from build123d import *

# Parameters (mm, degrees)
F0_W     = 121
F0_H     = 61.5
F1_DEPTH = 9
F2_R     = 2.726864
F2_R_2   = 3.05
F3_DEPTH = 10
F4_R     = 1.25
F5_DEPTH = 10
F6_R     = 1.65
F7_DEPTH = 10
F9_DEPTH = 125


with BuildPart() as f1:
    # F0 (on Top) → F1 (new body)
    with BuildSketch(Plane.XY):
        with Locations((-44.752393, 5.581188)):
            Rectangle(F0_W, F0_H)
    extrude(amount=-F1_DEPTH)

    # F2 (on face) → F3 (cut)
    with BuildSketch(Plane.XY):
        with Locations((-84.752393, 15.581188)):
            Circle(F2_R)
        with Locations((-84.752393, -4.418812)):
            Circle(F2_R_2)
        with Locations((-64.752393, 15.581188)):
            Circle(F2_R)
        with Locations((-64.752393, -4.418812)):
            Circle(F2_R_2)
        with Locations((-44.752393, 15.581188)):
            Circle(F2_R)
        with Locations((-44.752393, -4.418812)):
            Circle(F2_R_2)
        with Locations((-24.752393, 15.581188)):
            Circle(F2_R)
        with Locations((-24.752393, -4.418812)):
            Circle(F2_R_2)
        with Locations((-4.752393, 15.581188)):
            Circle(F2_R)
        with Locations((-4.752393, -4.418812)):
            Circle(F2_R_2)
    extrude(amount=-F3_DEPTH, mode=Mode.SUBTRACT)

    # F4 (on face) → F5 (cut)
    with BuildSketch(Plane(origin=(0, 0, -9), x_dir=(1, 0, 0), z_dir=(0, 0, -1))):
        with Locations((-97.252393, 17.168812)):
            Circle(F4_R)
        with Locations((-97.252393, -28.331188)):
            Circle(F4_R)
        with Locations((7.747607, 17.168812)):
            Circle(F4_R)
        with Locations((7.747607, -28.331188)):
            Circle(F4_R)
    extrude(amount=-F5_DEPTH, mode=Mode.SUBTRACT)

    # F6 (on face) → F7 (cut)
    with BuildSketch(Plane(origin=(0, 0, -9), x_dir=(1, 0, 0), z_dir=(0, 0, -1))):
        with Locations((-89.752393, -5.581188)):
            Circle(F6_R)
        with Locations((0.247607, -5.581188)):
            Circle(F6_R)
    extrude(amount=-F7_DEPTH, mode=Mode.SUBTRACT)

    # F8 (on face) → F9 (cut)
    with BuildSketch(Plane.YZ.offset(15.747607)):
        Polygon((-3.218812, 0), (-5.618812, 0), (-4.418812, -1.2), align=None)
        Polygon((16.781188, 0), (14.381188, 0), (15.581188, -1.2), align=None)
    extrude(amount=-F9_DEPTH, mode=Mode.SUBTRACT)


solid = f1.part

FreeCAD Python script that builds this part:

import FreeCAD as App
import Part
import Sketcher

V = App.Vector
Q = App.Units.Quantity


def add_polygon(sketch, points):
    """Adds a closed chain of lines whose ends are joined by coincident constraints."""
    first, n = sketch.GeometryCount, len(points)
    for a, b in zip(points, points[1:] + points[:1]):
        sketch.addGeometry(Part.LineSegment(App.Vector(*a, 0), App.Vector(*b, 0)), False)
    for i in range(n):
        sketch.addConstraint(Sketcher.Constraint("Coincident", first + i, 2, first + (i + 1) % n, 1))

doc = App.newDocument("Part")
body = doc.addObject("PartDesign::Body", "Body")

sketch1 = body.newObject("Sketcher::SketchObject", "Sketch")
sketch1.AttachmentSupport = (doc.getObject("XY_Plane"), [""])
sketch1.MapMode = "FlatFace"
add_polygon(sketch1, [(-105, 36), (-105, -25), (16, -25), (16, 36)])
sketch1.addConstraint(Sketcher.Constraint("Vertical", 0))
sketch1.addConstraint(Sketcher.Constraint("Horizontal", 1))
sketch1.addConstraint(Sketcher.Constraint("Vertical", 2))
sketch1.addConstraint(Sketcher.Constraint("Horizontal", 3))
sketch1.addConstraint(Sketcher.Constraint("DistanceX", 1, 1, 1, 2, Q("121 mm")))
sketch1.addConstraint(Sketcher.Constraint("DistanceY", 0, 2, 0, 1, Q("61.5 mm")))
sketch1.addConstraint(Sketcher.Constraint("DistanceY", 0, 2, -1, 1, Q("25.168812 mm")))
sketch1.addConstraint(Sketcher.Constraint("DistanceX", 0, 2, -1, 1, Q("105.252393 mm")))
pad1 = body.newObject("PartDesign::Pad", "Pad")
pad1.Profile = sketch1
pad1.Length = 9
pad1.Reversed = True

sketch2 = body.newObject("Sketcher::SketchObject", "Sketch001")
sketch2.AttachmentSupport = (doc.getObject("XY_Plane"), [""])
sketch2.MapMode = "FlatFace"
sketch2.addGeometry(Part.Circle(V(-84.8, 15.6, 0), V(0, 0, 1), 2.7), False)
sketch2.addGeometry(Part.Circle(V(-84.8, -4.4, 0), V(0, 0, 1), 3), False)
sketch2.addGeometry(Part.Circle(V(-64.8, 15.6, 0), V(0, 0, 1), 2.7), False)
sketch2.addGeometry(Part.Circle(V(-64.8, -4.4, 0), V(0, 0, 1), 3), False)
sketch2.addGeometry(Part.Circle(V(-44.8, 15.6, 0), V(0, 0, 1), 2.7), False)
sketch2.addGeometry(Part.Circle(V(-44.8, -4.4, 0), V(0, 0, 1), 3), False)
sketch2.addGeometry(Part.Circle(V(-24.8, 15.6, 0), V(0, 0, 1), 2.7), False)
sketch2.addGeometry(Part.Circle(V(-24.8, -4.4, 0), V(0, 0, 1), 3), False)
sketch2.addGeometry(Part.Circle(V(-4.8, 15.6, 0), V(0, 0, 1), 2.7), False)
sketch2.addGeometry(Part.Circle(V(-4.8, -4.4, 0), V(0, 0, 1), 3), False)
sketch2.addConstraint(Sketcher.Constraint("Equal", 0, 2))
sketch2.addConstraint(Sketcher.Constraint("Equal", 1, 3))
sketch2.addConstraint(Sketcher.Constraint("Equal", 2, 4))
sketch2.addConstraint(Sketcher.Constraint("Equal", 3, 5))
sketch2.addConstraint(Sketcher.Constraint("Equal", 4, 6))
sketch2.addConstraint(Sketcher.Constraint("Equal", 5, 7))
sketch2.addConstraint(Sketcher.Constraint("Equal", 6, 8))
sketch2.addConstraint(Sketcher.Constraint("Equal", 7, 9))
sketch2.addConstraint(Sketcher.Constraint("Horizontal", 0, 3, 2, 3))
sketch2.addConstraint(Sketcher.Constraint("Horizontal", 1, 3, 3, 3))
sketch2.addConstraint(Sketcher.Constraint("Horizontal", 2, 3, 4, 3))
sketch2.addConstraint(Sketcher.Constraint("Horizontal", 3, 3, 5, 3))
sketch2.addConstraint(Sketcher.Constraint("Horizontal", 4, 3, 6, 3))
sketch2.addConstraint(Sketcher.Constraint("Horizontal", 5, 3, 7, 3))
sketch2.addConstraint(Sketcher.Constraint("Horizontal", 6, 3, 8, 3))
sketch2.addConstraint(Sketcher.Constraint("Horizontal", 7, 3, 9, 3))
sketch2.addConstraint(Sketcher.Constraint("Vertical", 0, 3, 1, 3))
sketch2.addConstraint(Sketcher.Constraint("Vertical", 2, 3, 3, 3))
sketch2.addConstraint(Sketcher.Constraint("Vertical", 4, 3, 5, 3))
sketch2.addConstraint(Sketcher.Constraint("Vertical", 6, 3, 7, 3))
sketch2.addConstraint(Sketcher.Constraint("Vertical", 8, 3, 9, 3))
sketch2.addConstraint(Sketcher.Constraint("Diameter", 1, Q("6.1 mm")))
sketch2.addConstraint(Sketcher.Constraint("DistanceY", 1, 3, 0, 3, Q("20 mm")))
sketch2.addConstraint(Sketcher.Constraint("DistanceX", 0, 3, 2, 3, Q("20 mm")))
sketch2.addConstraint(Sketcher.Constraint("DistanceX", 2, 3, 4, 3, Q("20 mm")))
sketch2.addConstraint(Sketcher.Constraint("DistanceX", 4, 3, 6, 3, Q("20 mm")))
sketch2.addConstraint(Sketcher.Constraint("DistanceX", 6, 3, 8, 3, Q("20 mm")))
sketch2.addConstraint(Sketcher.Constraint("Diameter", 0, Q("5.453728 mm")))
sketch2.addConstraint(Sketcher.Constraint("DistanceX", 0, 3, -1, 1, Q("84.752393 mm")))
sketch2.addConstraint(Sketcher.Constraint("DistanceY", -1, 1, 0, 3, Q("15.581188 mm")))
pocket1 = body.newObject("PartDesign::Pocket", "Pocket")
pocket1.Profile = sketch2
pocket1.Length = 10

sketch3 = body.newObject("Sketcher::SketchObject", "Sketch002")
sketch3.AttachmentSupport = (doc.getObject("XY_Plane"), [""])
sketch3.MapMode = "FlatFace"
sketch3.AttachmentOffset = App.Placement(V(0, 0, -9), App.Rotation())
sketch3.addGeometry(Part.Circle(V(-97.3, -17.2, 0), V(0, 0, 1), 1.2), False)
sketch3.addGeometry(Part.Circle(V(-97.3, 28.3, 0), V(0, 0, 1), 1.2), False)
sketch3.addGeometry(Part.Circle(V(7.7, -17.2, 0), V(0, 0, 1), 1.2), False)
sketch3.addGeometry(Part.Circle(V(7.7, 28.3, 0), V(0, 0, 1), 1.2), False)
sketch3.addConstraint(Sketcher.Constraint("Equal", 0, 1))
sketch3.addConstraint(Sketcher.Constraint("Equal", 1, 2))
sketch3.addConstraint(Sketcher.Constraint("Equal", 2, 3))
sketch3.addConstraint(Sketcher.Constraint("Horizontal", 0, 3, 2, 3))
sketch3.addConstraint(Sketcher.Constraint("Horizontal", 1, 3, 3, 3))
sketch3.addConstraint(Sketcher.Constraint("Vertical", 0, 3, 1, 3))
sketch3.addConstraint(Sketcher.Constraint("Vertical", 2, 3, 3, 3))
sketch3.addConstraint(Sketcher.Constraint("Diameter", 0, Q("2.5 mm")))
sketch3.addConstraint(Sketcher.Constraint("DistanceX", 0, 3, 2, 3, Q("105 mm")))
sketch3.addConstraint(Sketcher.Constraint("DistanceY", 0, 3, 1, 3, Q("45.5 mm")))
sketch3.addConstraint(Sketcher.Constraint("DistanceY", 0, 3, -1, 1, Q("17.168812 mm")))
sketch3.addConstraint(Sketcher.Constraint("DistanceX", 0, 3, -1, 1, Q("97.252393 mm")))
pocket2 = body.newObject("PartDesign::Pocket", "Pocket001")
pocket2.Profile = sketch3
pocket2.Length = 10
pocket2.Reversed = True

sketch4 = body.newObject("Sketcher::SketchObject", "Sketch003")
sketch4.AttachmentSupport = (doc.getObject("XY_Plane"), [""])
sketch4.MapMode = "FlatFace"
sketch4.AttachmentOffset = App.Placement(V(0, 0, -9), App.Rotation())
sketch4.addGeometry(Part.Circle(V(-89.8, 5.6, 0), V(0, 0, 1), 1.6), False)
sketch4.addGeometry(Part.Circle(V(0.2, 5.6, 0), V(0, 0, 1), 1.6), False)
sketch4.addConstraint(Sketcher.Constraint("Equal", 0, 1))
sketch4.addConstraint(Sketcher.Constraint("Horizontal", 0, 3, 1, 3))
sketch4.addConstraint(Sketcher.Constraint("Diameter", 0, Q("3.3 mm")))
sketch4.addConstraint(Sketcher.Constraint("DistanceX", 0, 3, 1, 3, Q("90 mm")))
sketch4.addConstraint(Sketcher.Constraint("DistanceX", 0, 3, -1, 1, Q("89.752393 mm")))
sketch4.addConstraint(Sketcher.Constraint("DistanceY", -1, 1, 0, 3, Q("5.581188 mm")))
pocket3 = body.newObject("PartDesign::Pocket", "Pocket002")
pocket3.Profile = sketch4
pocket3.Length = 10
pocket3.Reversed = True

sketch5 = body.newObject("Sketcher::SketchObject", "Sketch004")
sketch5.AttachmentSupport = (doc.getObject("YZ_Plane"), [""])
sketch5.MapMode = "FlatFace"
sketch5.AttachmentOffset = App.Placement(V(0, 0, 15.747607), App.Rotation())
add_polygon(sketch5, [(-3.2, 0), (-5.6, 0), (-4.4, -1.2)])
add_polygon(sketch5, [(16.8, 0), (14.4, 0), (15.6, -1.2)])
sketch5.addConstraint(Sketcher.Constraint("Horizontal", 0))
sketch5.addConstraint(Sketcher.Constraint("Horizontal", 3))
sketch5.addConstraint(Sketcher.Constraint("PointOnObject", 0, 2, -1))
sketch5.addConstraint(Sketcher.Constraint("PointOnObject", 3, 2, -1))
sketch5.addConstraint(Sketcher.Constraint("Perpendicular", 1, 2))
sketch5.addConstraint(Sketcher.Constraint("Perpendicular", 2, 4))
sketch5.addConstraint(Sketcher.Constraint("Perpendicular", 4, 5))
sketch5.addConstraint(Sketcher.Constraint("Horizontal", 1, 2, 4, 2))
sketch5.addConstraint(Sketcher.Constraint("Equal", 1, 2))
sketch5.addConstraint(Sketcher.Constraint("DistanceX", 0, 2, 0, 1, Q("2.4 mm")))
sketch5.addConstraint(Sketcher.Constraint("DistanceX", 0, 2, 3, 2, Q("20 mm")))
sketch5.addConstraint(Sketcher.Constraint("DistanceX", 2, 2, -1, 1, Q("3.218812 mm")))
pocket4 = body.newObject("PartDesign::Pocket", "Pocket003")
pocket4.Profile = sketch5
pocket4.Length = 125

doc.recompute()
